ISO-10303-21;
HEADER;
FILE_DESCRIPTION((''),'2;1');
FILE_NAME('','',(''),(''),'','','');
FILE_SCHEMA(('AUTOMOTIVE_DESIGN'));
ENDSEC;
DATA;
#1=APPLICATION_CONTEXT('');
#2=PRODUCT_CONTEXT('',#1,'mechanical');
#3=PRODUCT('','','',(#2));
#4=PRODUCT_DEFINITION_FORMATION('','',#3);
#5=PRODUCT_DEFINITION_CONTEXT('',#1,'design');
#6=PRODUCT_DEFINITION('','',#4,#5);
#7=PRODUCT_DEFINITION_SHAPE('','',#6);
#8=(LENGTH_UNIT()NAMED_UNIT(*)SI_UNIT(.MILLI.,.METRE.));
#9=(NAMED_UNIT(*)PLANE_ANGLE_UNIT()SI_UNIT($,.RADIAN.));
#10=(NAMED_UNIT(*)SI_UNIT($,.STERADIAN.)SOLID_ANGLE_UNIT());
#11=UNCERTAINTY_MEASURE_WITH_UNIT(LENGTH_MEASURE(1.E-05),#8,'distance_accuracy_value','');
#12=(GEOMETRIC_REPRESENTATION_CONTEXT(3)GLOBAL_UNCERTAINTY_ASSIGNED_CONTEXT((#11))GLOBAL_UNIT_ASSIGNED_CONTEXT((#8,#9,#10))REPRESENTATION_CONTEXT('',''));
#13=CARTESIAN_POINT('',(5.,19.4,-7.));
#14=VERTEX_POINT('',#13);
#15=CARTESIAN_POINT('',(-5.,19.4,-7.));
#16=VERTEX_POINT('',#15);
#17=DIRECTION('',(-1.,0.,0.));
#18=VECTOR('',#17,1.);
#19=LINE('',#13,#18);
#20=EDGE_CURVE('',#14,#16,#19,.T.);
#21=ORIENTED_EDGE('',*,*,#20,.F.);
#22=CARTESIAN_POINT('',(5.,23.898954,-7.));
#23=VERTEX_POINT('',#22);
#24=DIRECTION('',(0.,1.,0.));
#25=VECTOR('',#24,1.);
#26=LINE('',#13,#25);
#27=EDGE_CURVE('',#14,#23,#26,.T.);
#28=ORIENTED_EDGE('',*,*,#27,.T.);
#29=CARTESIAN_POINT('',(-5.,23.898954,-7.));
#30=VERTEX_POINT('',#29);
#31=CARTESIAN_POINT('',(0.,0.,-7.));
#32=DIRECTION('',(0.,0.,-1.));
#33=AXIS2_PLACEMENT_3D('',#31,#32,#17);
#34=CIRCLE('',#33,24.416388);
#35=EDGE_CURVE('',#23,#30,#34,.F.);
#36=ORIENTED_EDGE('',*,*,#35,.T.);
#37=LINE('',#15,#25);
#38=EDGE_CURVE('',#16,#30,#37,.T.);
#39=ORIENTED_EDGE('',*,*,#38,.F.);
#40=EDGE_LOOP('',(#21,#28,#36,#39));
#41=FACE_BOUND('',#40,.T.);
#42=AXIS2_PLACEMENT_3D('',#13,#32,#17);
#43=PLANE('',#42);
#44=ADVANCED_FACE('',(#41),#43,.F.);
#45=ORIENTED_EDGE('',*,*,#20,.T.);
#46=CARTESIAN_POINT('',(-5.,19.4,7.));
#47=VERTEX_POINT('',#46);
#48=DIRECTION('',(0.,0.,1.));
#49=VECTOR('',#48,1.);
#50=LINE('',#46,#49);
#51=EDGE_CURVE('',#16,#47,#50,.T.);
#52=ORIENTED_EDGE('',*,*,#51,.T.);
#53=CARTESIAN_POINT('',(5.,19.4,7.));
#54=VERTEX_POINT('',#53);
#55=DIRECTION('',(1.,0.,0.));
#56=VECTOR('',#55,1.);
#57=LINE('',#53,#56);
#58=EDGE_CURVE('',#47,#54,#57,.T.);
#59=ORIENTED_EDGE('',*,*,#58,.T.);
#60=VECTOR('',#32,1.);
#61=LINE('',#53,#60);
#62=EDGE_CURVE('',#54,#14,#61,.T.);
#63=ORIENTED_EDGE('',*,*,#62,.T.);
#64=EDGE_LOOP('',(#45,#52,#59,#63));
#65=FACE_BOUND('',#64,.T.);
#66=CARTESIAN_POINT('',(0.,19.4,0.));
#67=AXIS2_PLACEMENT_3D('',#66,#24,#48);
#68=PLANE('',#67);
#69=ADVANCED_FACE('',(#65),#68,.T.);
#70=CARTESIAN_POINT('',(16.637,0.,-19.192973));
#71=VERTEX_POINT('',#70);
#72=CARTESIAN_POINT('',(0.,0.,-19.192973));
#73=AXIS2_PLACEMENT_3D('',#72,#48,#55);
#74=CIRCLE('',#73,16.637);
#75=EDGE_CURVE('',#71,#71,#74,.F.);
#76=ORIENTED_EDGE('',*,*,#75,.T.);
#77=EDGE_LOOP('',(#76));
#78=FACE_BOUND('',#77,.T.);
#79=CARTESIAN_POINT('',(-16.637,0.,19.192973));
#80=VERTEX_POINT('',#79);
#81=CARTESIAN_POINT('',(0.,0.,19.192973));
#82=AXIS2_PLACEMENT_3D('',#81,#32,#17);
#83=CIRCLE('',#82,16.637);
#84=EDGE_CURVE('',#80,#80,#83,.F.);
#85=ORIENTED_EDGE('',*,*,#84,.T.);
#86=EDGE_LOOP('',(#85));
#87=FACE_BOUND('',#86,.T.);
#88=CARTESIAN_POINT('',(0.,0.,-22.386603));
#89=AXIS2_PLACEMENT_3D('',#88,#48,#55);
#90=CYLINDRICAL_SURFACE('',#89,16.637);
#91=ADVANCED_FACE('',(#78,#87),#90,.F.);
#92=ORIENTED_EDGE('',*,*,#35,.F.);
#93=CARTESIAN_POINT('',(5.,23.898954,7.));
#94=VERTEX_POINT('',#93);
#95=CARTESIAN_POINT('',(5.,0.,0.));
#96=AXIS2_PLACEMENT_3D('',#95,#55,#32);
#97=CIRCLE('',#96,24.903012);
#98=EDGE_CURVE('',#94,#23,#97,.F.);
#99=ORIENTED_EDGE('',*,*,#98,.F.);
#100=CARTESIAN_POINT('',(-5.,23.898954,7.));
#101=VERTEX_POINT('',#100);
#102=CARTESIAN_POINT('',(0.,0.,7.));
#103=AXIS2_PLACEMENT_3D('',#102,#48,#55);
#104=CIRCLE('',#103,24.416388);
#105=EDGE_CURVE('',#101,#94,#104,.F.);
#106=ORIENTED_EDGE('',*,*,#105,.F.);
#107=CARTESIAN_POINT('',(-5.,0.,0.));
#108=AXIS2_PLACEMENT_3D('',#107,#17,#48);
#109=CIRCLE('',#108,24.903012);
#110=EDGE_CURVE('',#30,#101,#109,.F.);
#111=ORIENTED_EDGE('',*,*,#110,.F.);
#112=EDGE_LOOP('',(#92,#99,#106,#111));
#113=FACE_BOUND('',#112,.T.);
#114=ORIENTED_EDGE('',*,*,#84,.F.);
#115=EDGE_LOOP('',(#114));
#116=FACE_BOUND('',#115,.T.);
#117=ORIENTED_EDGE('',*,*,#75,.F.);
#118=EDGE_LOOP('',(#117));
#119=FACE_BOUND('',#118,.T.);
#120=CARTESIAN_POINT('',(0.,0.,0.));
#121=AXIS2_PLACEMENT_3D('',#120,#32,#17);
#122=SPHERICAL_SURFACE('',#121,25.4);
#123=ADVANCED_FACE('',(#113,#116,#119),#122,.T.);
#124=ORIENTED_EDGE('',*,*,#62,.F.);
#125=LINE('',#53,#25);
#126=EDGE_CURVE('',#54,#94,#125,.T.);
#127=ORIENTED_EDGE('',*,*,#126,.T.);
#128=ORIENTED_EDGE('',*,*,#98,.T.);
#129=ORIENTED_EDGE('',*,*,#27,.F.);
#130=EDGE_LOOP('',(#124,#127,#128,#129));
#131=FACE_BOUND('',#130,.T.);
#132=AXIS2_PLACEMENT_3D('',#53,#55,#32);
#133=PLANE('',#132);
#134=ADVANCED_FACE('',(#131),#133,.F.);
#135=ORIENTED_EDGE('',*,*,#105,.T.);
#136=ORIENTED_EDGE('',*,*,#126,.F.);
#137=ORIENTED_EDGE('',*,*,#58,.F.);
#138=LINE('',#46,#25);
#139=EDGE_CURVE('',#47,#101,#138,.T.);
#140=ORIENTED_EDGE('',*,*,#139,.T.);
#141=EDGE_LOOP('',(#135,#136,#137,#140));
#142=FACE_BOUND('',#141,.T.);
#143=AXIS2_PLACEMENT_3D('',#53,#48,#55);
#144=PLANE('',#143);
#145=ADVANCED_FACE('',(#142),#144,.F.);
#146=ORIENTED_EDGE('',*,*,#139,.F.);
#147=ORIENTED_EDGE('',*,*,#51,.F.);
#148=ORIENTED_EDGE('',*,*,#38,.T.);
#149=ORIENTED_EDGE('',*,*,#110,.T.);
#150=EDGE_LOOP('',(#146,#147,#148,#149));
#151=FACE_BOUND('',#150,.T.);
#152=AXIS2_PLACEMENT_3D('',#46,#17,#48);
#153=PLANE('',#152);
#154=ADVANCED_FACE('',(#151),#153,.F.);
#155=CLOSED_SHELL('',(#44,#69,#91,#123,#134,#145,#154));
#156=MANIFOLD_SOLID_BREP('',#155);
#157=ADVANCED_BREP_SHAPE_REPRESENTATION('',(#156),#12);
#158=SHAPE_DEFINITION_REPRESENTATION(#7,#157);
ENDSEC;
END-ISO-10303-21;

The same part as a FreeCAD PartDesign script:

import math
import FreeCAD as App
import Part
import Sketcher
from FreeCAD import Vector
Q = App.Units.Quantity

doc = App.newDocument("Part")
params = doc.addObject("Spreadsheet::Sheet", "Params")
for row, (alias, value) in enumerate([
    ("sketch1_radius", "25.4 mm"),
    ("sketch1_width", "12 mm"),
    ("revolution_angle", "360 deg"),
    ("sketch3_width", "10 mm"),
    ("sketch3_height", "14 mm"),
    ("pocket2_length", "6 mm"),
], start=1):
    params.set(f"A{row}", alias)
    params.set(f"B{row}", "=" + value)
    params.setAlias(f"B{row}", alias)

body = doc.addObject("PartDesign::Body", "Body")

# Sketch on XZ plane
sketch1 = body.newObject("Sketcher::SketchObject", "Sketch")
sketch1.AttachmentSupport = (doc.getObject("XZ_Plane"), [""])
sketch1.MapMode = "FlatFace"
sketch1.addGeometry(Part.LineSegment(Vector(0, -22, 0), Vector(-12, -22, 0)), False)
sketch1.addGeometry(Part.ArcOfCircle(Part.Circle(Vector(0, 0, 0), Vector(0, 0, 1), 25), math.radians(118), math.radians(242)), False)
sketch1.addGeometry(Part.LineSegment(Vector(-12, 22, 0), Vector(0, 22, 0)), False)
sketch1.addGeometry(Part.LineSegment(Vector(0, 22, 0), Vector(0, -22, 0)), False)
sketch1.addConstraint(Sketcher.Constraint("Coincident", 0, 2, 1, 2))
sketch1.addConstraint(Sketcher.Constraint("Coincident", 1, 1, 2, 1))
sketch1.addConstraint(Sketcher.Constraint("Coincident", 2, 2, 3, 1))
sketch1.addConstraint(Sketcher.Constraint("Coincident", 3, 2, 0, 1))
sketch1.addConstraint(Sketcher.Constraint("Horizontal", 0))
sketch1.addConstraint(Sketcher.Constraint("Horizontal", 2))
sketch1.addConstraint(Sketcher.Constraint("Vertical", 3))
sketch1.addConstraint(Sketcher.Constraint("Coincident", 1, 3, -1, 1))
sketch1.addConstraint(Sketcher.Constraint("Symmetric", 2, 2, 3, 2, -1, 1))
sketch1.addConstraint(Sketcher.Constraint("Radius", 1, Q("25.4 mm")))
sketch1.addConstraint(Sketcher.Constraint("DistanceX", 0, 2, 0, 1, Q("12 mm")))
sketch1.setExpression("Constraints[9]", "Params.sketch1_radius")
sketch1.setExpression("Constraints[10]", "Params.sketch1_width")
revolution = body.newObject("PartDesign::Revolution", "Revolution")
revolution.Profile = sketch1
revolution.ReferenceAxis = (sketch1, ["V_Axis"])
revolution.setExpression("Angle", "Params.revolution_angle")

# Sketch on XY plane
sketch2 = body.newObject("Sketcher::SketchObject", "Sketch001")
sketch2.AttachmentSupport = (doc.getObject("XY_Plane"), [""])
sketch2.MapMode = "FlatFace"
sketch2.AttachmentOffset = App.Placement(Vector(0, 0, 22.386603), App.Rotation())
sketch2.addGeometry(Part.Circle(Vector(0, 0, 0), Vector(0, 0, 1), 17), False)
sketch2.addConstraint(Sketcher.Constraint("Coincident", 0, 3, -1, 1))
sketch2.addConstraint(Sketcher.Constraint("Diameter", 0, Q("33.274 mm")))
pocket1 = body.newObject("PartDesign::Pocket", "Pocket")
pocket1.Profile = sketch2
pocket1.Type = "ThroughAll"

# Sketch on XZ plane
sketch3 = body.newObject("Sketcher::SketchObject", "Sketch002")
sketch3.AttachmentSupport = (doc.getObject("XZ_Plane"), [""])
sketch3.MapMode = "FlatFace"
sketch3.AttachmentOffset = App.Placement(Vector(0, 0, -25.4), App.Rotation())
sketch3.addGeometry(Part.LineSegment(Vector(-5, -7, 0), Vector(-5, 7, 0)), False)
sketch3.addGeometry(Part.LineSegment(Vector(-5, 7, 0), Vector(5, 7, 0)), False)
sketch3.addGeometry(Part.LineSegment(Vector(5, 7, 0), Vector(5, -7, 0)), False)
sketch3.addGeometry(Part.LineSegment(Vector(5, -7, 0), Vector(-5, -7, 0)), False)
sketch3.addConstraint(Sketcher.Constraint("Coincident", 0, 2, 1, 1))
sketch3.addConstraint(Sketcher.Constraint("Coincident", 1, 2, 2, 1))
sketch3.addConstraint(Sketcher.Constraint("Coincident", 2, 2, 3, 1))
sketch3.addConstraint(Sketcher.Constraint("Coincident", 3, 2, 0, 1))
sketch3.addConstraint(Sketcher.Constraint("Vertical", 0))
sketch3.addConstraint(Sketcher.Constraint("Horizontal", 1))
sketch3.addConstraint(Sketcher.Constraint("Vertical", 2))
sketch3.addConstraint(Sketcher.Constraint("Horizontal", 3))
sketch3.addConstraint(Sketcher.Constraint("Symmetric", 0, 2, 2, 2, -1, 1))
sketch3.addConstraint(Sketcher.Constraint("DistanceX", 1, 1, 1, 2, Q("10 mm")))
sketch3.addConstraint(Sketcher.Constraint("DistanceY", 0, 1, 0, 2, Q("14 mm")))
sketch3.setExpression("Constraints[9]", "Params.sketch3_width")
sketch3.setExpression("Constraints[10]", "Params.sketch3_height")
pocket2 = body.newObject("PartDesign::Pocket", "Pocket001")
pocket2.Profile = sketch3
pocket2.setExpression("Length", "Params.pocket2_length")
pocket2.Reversed = True

doc.recompute()
